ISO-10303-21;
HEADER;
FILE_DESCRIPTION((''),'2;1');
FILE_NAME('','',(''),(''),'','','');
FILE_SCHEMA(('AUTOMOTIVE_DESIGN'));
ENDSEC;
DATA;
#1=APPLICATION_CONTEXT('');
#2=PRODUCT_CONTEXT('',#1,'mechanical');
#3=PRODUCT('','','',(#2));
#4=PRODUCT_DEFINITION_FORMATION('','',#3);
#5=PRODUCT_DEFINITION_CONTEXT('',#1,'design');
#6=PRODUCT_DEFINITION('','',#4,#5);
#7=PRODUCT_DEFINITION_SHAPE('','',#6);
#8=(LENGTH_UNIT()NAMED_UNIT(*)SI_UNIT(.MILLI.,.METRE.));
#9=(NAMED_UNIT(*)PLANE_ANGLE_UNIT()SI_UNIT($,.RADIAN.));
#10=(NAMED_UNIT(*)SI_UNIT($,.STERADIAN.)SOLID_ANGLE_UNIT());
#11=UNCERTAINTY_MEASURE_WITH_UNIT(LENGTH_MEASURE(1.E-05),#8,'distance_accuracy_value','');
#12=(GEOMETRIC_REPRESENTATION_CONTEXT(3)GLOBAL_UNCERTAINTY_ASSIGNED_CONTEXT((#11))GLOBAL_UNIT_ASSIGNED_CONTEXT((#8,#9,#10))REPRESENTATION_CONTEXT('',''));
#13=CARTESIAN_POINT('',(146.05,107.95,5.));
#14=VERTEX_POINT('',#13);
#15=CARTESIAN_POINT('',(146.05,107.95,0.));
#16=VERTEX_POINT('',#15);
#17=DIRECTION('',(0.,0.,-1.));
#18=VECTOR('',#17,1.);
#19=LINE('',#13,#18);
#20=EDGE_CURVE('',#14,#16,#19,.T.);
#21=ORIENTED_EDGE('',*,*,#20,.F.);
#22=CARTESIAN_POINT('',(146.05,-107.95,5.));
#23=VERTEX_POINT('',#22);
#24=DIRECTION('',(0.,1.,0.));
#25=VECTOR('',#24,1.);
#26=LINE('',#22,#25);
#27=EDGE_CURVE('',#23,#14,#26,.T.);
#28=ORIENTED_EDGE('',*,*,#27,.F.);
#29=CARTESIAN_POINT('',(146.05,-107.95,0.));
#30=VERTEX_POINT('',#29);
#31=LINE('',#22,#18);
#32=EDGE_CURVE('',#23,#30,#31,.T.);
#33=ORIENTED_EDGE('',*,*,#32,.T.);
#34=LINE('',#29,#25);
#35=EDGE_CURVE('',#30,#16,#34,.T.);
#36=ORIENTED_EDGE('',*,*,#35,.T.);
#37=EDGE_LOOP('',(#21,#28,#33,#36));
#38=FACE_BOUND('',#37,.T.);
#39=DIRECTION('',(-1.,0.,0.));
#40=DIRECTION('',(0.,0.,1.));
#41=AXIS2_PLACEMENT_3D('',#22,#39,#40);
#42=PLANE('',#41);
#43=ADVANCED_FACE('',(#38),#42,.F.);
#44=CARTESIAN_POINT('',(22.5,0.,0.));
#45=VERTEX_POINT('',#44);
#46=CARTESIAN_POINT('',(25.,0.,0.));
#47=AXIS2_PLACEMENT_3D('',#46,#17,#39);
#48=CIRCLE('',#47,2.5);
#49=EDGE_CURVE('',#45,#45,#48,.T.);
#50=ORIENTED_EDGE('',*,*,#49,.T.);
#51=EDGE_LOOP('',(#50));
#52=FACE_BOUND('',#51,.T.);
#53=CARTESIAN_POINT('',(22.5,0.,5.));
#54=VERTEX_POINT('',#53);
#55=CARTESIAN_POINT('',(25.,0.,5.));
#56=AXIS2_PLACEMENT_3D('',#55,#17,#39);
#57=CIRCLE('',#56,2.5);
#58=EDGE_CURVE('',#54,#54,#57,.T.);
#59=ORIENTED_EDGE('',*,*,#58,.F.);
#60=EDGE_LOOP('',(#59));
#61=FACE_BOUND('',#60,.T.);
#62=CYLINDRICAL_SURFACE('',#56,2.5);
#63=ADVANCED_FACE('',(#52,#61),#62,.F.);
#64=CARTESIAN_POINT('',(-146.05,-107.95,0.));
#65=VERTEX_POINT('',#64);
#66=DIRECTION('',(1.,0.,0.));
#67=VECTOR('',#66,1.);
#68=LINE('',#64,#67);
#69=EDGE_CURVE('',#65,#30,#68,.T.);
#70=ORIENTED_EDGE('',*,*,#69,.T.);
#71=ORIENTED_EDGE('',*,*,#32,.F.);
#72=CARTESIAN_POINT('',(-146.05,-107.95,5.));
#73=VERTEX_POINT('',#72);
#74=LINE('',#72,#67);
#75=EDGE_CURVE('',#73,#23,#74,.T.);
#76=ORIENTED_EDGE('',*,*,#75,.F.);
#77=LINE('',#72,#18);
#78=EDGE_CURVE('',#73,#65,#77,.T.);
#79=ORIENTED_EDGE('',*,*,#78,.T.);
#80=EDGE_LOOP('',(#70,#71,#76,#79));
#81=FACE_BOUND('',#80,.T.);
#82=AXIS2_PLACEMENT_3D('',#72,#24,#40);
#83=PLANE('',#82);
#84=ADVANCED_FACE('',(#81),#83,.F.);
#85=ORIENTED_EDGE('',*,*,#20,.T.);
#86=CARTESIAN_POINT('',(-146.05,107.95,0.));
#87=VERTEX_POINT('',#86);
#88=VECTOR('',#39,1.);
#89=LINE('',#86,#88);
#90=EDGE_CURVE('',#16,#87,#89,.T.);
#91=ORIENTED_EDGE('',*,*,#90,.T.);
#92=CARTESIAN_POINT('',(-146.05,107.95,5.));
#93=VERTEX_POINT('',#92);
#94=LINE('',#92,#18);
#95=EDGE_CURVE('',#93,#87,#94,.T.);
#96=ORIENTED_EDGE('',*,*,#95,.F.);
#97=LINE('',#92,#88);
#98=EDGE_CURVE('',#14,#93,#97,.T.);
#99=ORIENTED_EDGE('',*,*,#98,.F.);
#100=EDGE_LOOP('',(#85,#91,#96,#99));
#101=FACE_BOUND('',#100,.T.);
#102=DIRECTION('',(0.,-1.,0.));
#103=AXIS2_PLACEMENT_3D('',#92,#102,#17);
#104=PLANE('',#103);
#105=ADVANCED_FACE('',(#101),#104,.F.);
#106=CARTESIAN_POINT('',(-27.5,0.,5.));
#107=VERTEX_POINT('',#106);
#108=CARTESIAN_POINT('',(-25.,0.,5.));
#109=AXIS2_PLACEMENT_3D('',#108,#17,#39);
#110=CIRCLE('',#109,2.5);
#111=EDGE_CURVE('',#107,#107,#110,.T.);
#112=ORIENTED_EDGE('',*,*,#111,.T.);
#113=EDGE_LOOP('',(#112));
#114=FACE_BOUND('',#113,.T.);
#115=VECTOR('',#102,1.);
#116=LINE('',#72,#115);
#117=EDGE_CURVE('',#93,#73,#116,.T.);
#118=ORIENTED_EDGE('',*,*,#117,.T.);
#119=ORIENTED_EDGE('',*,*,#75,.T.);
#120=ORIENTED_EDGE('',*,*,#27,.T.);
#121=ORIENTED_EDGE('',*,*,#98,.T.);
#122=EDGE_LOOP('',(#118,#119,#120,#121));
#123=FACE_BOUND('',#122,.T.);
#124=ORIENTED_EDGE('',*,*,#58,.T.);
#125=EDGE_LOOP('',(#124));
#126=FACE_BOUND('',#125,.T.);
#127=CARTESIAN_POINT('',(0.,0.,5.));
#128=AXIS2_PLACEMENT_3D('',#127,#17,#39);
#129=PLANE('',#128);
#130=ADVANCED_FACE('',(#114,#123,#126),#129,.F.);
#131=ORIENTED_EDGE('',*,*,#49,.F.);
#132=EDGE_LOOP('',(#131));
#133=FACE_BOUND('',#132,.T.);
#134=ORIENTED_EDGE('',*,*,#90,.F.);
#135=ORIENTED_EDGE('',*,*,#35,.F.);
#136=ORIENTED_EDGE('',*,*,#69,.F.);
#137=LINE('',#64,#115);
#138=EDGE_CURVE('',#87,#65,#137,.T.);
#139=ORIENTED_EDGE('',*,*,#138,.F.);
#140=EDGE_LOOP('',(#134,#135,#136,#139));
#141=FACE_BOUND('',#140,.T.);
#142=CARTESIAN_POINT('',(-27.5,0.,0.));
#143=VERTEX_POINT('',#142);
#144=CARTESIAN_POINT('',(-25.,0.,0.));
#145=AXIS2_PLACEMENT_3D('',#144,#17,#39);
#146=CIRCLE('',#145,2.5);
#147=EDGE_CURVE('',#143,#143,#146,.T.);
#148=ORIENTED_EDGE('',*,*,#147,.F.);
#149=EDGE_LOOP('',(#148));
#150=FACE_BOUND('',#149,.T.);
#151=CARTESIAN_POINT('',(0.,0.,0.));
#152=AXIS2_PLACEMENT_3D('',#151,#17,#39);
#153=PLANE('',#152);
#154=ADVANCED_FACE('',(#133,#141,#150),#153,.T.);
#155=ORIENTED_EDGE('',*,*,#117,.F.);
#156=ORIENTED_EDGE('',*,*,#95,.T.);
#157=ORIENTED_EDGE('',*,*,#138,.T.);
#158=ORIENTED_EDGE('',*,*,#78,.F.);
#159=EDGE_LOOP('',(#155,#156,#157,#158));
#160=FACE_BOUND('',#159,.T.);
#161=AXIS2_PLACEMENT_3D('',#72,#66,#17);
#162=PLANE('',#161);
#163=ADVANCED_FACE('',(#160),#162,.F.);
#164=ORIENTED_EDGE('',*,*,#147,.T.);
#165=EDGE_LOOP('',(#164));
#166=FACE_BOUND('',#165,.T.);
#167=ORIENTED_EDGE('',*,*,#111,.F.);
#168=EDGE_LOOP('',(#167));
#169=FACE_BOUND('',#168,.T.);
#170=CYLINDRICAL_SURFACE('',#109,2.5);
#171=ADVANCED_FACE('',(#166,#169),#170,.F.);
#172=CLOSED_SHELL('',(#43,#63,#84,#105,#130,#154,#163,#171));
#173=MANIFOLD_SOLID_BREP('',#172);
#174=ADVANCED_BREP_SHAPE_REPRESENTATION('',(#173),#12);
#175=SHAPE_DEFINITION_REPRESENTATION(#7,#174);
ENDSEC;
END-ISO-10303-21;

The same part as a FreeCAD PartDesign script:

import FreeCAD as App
import Part
import Sketcher
Q = App.Units.Quantity

doc = App.newDocument("Part")
body = doc.addObject("PartDesign::Body", "Body")

sketch1 = body.newObject("Sketcher::SketchObject", "Sketch")
sketch1.AttachmentSupport = (doc.getObject("XY_Plane"), [""])
sketch1.MapMode = "FlatFace"
sketch1.addGeometry(Part.LineSegment(App.Vector(-146.05, 107.95, 0), App.Vector(-146.05, -107.95, 0)), False)
sketch1.addGeometry(Part.LineSegment(App.Vector(-146.05, -107.95, 0), App.Vector(146.05, -107.95, 0)), False)
sketch1.addGeometry(Part.LineSegment(App.Vector(146.05, -107.95, 0), App.Vector(146.05, 107.95, 0)), False)
sketch1.addGeometry(Part.LineSegment(App.Vector(146.05, 107.95, 0), App.Vector(-146.05, 107.95, 0)), False)
sketch1.addConstraint(Sketcher.Constraint("Coincident", 0, 2, 1, 1))
sketch1.addConstraint(Sketcher.Constraint("Coincident", 1, 2, 2, 1))
sketch1.addConstraint(Sketcher.Constraint("Coincident", 2, 2, 3, 1))
sketch1.addConstraint(Sketcher.Constraint("Coincident", 3, 2, 0, 1))
sketch1.addConstraint(Sketcher.Constraint("Vertical", 0))
sketch1.addConstraint(Sketcher.Constraint("Horizontal", 1))
sketch1.addConstraint(Sketcher.Constraint("Vertical", 2))
sketch1.addConstraint(Sketcher.Constraint("Horizontal", 3))
sketch1.addConstraint(Sketcher.Constraint("Symmetric", 0, 2, 2, 2, -1, 1))
sketch1.addConstraint(Sketcher.Constraint("DistanceX", 1, 1, 1, 2, Q("11.5 in")))
sketch1.addConstraint(Sketcher.Constraint("DistanceY", 0, 2, 0, 1, Q("8.5 in")))
pad1 = body.newObject("PartDesign::Pad", "Pad")
pad1.Profile = sketch1
pad1.Length = 5

sketch2 = body.newObject("Sketcher::SketchObject", "Sketch001")
sketch2.AttachmentSupport = (doc.getObject("XY_Plane"), [""])
sketch2.MapMode = "FlatFace"
sketch2.addGeometry(Part.Circle(App.Vector(25, 0, 0), App.Vector(0, 0, 1), 2.5), False)
sketch2.addGeometry(Part.Circle(App.Vector(-25, 0, 0), App.Vector(0, 0, 1), 2.5), False)
sketch2.addConstraint(Sketcher.Constraint("Equal", 0, 1))
sketch2.addConstraint(Sketcher.Constraint("Symmetric", 0, 3, 1, 3, -1, 1))
sketch2.addConstraint(Sketcher.Constraint("PointOnObject", 0, 3, -1))
sketch2.addConstraint(Sketcher.Constraint("Diameter", 0, 5.0))
sketch2.addConstraint(Sketcher.Constraint("DistanceX", -1, 1, 0, 3, 25.0))
pocket1 = body.newObject("PartDesign::Pocket", "Pocket")
pocket1.Profile = sketch2
pocket1.Length = 5
pocket1.Reversed = True

doc.recompute()
